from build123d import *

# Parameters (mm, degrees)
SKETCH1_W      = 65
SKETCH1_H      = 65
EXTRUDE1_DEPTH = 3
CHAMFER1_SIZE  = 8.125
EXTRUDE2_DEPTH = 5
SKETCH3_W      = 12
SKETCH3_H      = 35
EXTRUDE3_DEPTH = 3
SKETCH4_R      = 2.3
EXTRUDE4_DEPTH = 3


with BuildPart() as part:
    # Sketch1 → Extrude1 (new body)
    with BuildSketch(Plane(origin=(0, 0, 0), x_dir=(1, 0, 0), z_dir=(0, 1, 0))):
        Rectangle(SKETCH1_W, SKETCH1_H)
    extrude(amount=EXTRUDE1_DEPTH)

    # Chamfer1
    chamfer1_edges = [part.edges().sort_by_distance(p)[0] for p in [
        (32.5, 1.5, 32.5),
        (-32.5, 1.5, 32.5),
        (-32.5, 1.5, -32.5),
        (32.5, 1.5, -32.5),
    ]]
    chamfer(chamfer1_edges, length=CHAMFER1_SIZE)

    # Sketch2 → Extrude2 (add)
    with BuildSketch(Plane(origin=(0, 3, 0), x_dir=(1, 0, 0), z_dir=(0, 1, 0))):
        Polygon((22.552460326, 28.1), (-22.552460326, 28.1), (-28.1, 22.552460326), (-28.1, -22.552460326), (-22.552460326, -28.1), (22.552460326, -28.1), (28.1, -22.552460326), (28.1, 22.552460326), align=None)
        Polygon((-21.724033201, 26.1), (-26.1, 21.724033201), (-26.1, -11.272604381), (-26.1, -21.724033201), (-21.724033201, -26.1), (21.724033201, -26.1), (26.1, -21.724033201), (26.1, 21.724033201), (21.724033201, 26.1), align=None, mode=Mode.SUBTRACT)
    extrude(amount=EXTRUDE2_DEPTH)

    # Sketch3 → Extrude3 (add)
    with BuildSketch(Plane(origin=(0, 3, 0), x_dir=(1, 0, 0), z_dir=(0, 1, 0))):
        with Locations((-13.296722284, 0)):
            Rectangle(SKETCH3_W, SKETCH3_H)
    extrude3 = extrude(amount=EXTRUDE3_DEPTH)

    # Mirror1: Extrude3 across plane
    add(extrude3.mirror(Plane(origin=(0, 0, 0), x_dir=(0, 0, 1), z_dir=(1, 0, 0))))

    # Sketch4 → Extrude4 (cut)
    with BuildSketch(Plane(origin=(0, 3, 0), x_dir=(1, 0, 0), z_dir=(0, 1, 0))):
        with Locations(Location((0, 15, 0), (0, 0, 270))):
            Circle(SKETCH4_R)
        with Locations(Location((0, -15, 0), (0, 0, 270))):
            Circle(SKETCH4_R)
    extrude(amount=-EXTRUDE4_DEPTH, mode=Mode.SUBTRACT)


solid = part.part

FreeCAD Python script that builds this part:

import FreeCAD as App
import Part
import Sketcher

V = App.Vector
Q = App.Units.Quantity


def edges_at(feature, points):
    """Names of the edges that pass closest to the given points."""
    edges = feature.Shape.Edges
    near = lambda p: min(range(len(edges)), key=lambda i: edges[i].distToShape(Part.Vertex(*p))[0])
    return sorted({f"Edge{near(p) + 1}" for p in points})


def add_polygon(sketch, points):
    """Adds a closed chain of lines whose ends are joined by coincident constraints."""
    first, n = sketch.GeometryCount, len(points)
    for a, b in zip(points, points[1:] + points[:1]):
        sketch.addGeometry(Part.LineSegment(App.Vector(*a, 0), App.Vector(*b, 0)), False)
    for i in range(n):
        sketch.addConstraint(Sketcher.Constraint("Coincident", first + i, 2, first + (i + 1) % n, 1))

doc = App.newDocument("Part")
body = doc.addObject("PartDesign::Body", "Body")

# Sketch on XZ plane
sketch1 = body.newObject("Sketcher::SketchObject", "Sketch")
sketch1.AttachmentSupport = (doc.getObject("XZ_Plane"), [""])
sketch1.MapMode = "FlatFace"
add_polygon(sketch1, [(-32, -32), (-32, 32), (32, 32), (32, -32)])  # lines 0-3
sketch1.addConstraint(Sketcher.Constraint("Vertical", 0))
sketch1.addConstraint(Sketcher.Constraint("Horizontal", 1))
sketch1.addConstraint(Sketcher.Constraint("Vertical", 2))
sketch1.addConstraint(Sketcher.Constraint("Horizontal", 3))
sketch1.addConstraint(Sketcher.Constraint("Symmetric", 0, 2, 2, 2, -1, 1))
sketch1.addConstraint(Sketcher.Constraint("Equal", 3, 0))
sketch1.addConstraint(Sketcher.Constraint("DistanceX", 1, 1, 1, 2, Q("65 mm")))
pad1 = body.newObject("PartDesign::Pad", "Pad")
pad1.Profile = sketch1
pad1.Length = 3
pad1.Reversed = True
doc.recompute()

chamfer = body.newObject("PartDesign::Chamfer", "Chamfer")
chamfer.Base = (pad1, edges_at(pad1, [
    (32.5, 1.5, 32.5),
    (-32.5, 1.5, 32.5),
    (-32.5, 1.5, -32.5),
    (32.5, 1.5, -32.5),
]))
chamfer.Size = 8.125

# Sketch on XZ plane
sketch2 = body.newObject("Sketcher::SketchObject", "Sketch001")
sketch2.AttachmentSupport = (doc.getObject("XZ_Plane"), [""])
sketch2.MapMode = "FlatFace"
sketch2.AttachmentOffset = App.Placement(V(0, 0, -3), App.Rotation())
add_polygon(sketch2, [(23, -28), (-23, -28), (-28, -23), (-28, 23), (-23, 28), (23, 28), (28, 23), (28, -23)])  # lines 0-7
add_polygon(sketch2, [(-26, -22), (-22, -26), (22, -26), (26, -22), (26, 22), (22, 26), (-22, 26), (-26, 22)])  # lines 8-15
sketch2.addConstraint(Sketcher.Constraint("Horizontal", 0))
sketch2.addConstraint(Sketcher.Constraint("Vertical", 2))
sketch2.addConstraint(Sketcher.Constraint("Horizontal", 4))
sketch2.addConstraint(Sketcher.Constraint("Vertical", 6))
sketch2.addConstraint(Sketcher.Constraint("Horizontal", 9))
sketch2.addConstraint(Sketcher.Constraint("Vertical", 11))
sketch2.addConstraint(Sketcher.Constraint("Horizontal", 13))
sketch2.addConstraint(Sketcher.Constraint("Vertical", 15))
sketch2.addConstraint(Sketcher.Constraint("Symmetric", 0, 2, 4, 2, -1, 1))
sketch2.addConstraint(Sketcher.Constraint("Symmetric", 1, 2, 5, 2, -1, 1))
sketch2.addConstraint(Sketcher.Constraint("Symmetric", 8, 2, 12, 2, -1, 1))
sketch2.addConstraint(Sketcher.Constraint("Symmetric", 10, 2, 14, 2, -1, 1))
sketch2.addConstraint(Sketcher.Constraint("Perpendicular", 1, 3))
sketch2.addConstraint(Sketcher.Constraint("Perpendicular", 5, 7))
sketch2.addConstraint(Sketcher.Constraint("Perpendicular", 7, 8))
sketch2.addConstraint(Sketcher.Constraint("Perpendicular", 8, 10))
sketch2.addConstraint(Sketcher.Constraint("Perpendicular", 10, 12))
sketch2.addConstraint(Sketcher.Constraint("Perpendicular", 12, 14))
sketch2.addConstraint(Sketcher.Constraint("Horizontal", 2, 2, 5, 2))
sketch2.addConstraint(Sketcher.Constraint("Horizontal", 1, 2, 6, 2))
sketch2.addConstraint(Sketcher.Constraint("Horizontal", 11, 2, 14, 2))
sketch2.addConstraint(Sketcher.Constraint("Vertical", 0, 2, 3, 2))
sketch2.addConstraint(Sketcher.Constraint("Equal", 4, 2))
sketch2.addConstraint(Sketcher.Constraint("Equal", 13, 11))
sketch2.addConstraint(Sketcher.Constraint("DistanceY", 0, 2, 8, 2, Q("2 mm")))
sketch2.addConstraint(Sketcher.Constraint("DistanceY", 0, 2, -1, 1, Q("28.1 mm")))
sketch2.addConstraint(Sketcher.Constraint("DistanceX", 0, 2, 0, 1, Q("45.104921 mm")))
sketch2.addConstraint(Sketcher.Constraint("Distance", 8, Q("6.188552 mm")))
pad2 = body.newObject("PartDesign::Pad", "Pad001")
pad2.Profile = sketch2
pad2.Length = 5
pad2.Reversed = True

# Sketch on XZ plane
sketch3 = body.newObject("Sketcher::SketchObject", "Sketch002")
sketch3.AttachmentSupport = (doc.getObject("XZ_Plane"), [""])
sketch3.MapMode = "FlatFace"
sketch3.AttachmentOffset = App.Placement(V(0, 0, -3), App.Rotation())
add_polygon(sketch3, [(-19, -18), (-19, 18), (-7, 18), (-7, -18)])  # lines 0-3
sketch3.addConstraint(Sketcher.Constraint("Vertical", 0))
sketch3.addConstraint(Sketcher.Constraint("Horizontal", 1))
sketch3.addConstraint(Sketcher.Constraint("Vertical", 2))
sketch3.addConstraint(Sketcher.Constraint("Horizontal", 3))
sketch3.addConstraint(Sketcher.Constraint("DistanceX", 1, 1, 1, 2, Q("12 mm")))
sketch3.addConstraint(Sketcher.Constraint("DistanceY", 0, 1, 0, 2, Q("35 mm")))
sketch3.addConstraint(Sketcher.Constraint("DistanceY", -1, 1, 0, 2, Q("17.5 mm")))
sketch3.addConstraint(Sketcher.Constraint("DistanceX", 0, 2, -1, 1, Q("19.296722 mm")))
pad3 = body.newObject("PartDesign::Pad", "Pad002")
pad3.Profile = sketch3
pad3.Length = 3
pad3.Reversed = True
doc.recompute()

mirrored = body.newObject("PartDesign::Mirrored", "Mirrored")
mirrored.Originals = [pad3]
mirrored.MirrorPlane = (doc.getObject("YZ_Plane"), [""])
body.Tip = mirrored

# Sketch on XZ plane
sketch4 = body.newObject("Sketcher::SketchObject", "Sketch003")
sketch4.AttachmentSupport = (doc.getObject("XZ_Plane"), [""])
sketch4.MapMode = "FlatFace"
sketch4.AttachmentOffset = App.Placement(V(0, 0, -3), App.Rotation())
sketch4.addGeometry(Part.Circle(V(0, -15, 0), V(0, 0, 1), 2.3), False)
sketch4.addGeometry(Part.Circle(V(0, 15, 0), V(0, 0, 1), 2.3), False)
sketch4.addConstraint(Sketcher.Constraint("Equal", 0, 1))
sketch4.addConstraint(Sketcher.Constraint("Symmetric", 0, 3, 1, 3, -1, 1))
sketch4.addConstraint(Sketcher.Constraint("PointOnObject", 0, 3, -2))
sketch4.addConstraint(Sketcher.Constraint("Diameter", 0, Q("4.6 mm")))
sketch4.addConstraint(Sketcher.Constraint("DistanceY", 0, 3, -1, 1, Q("15 mm")))
pocket1 = body.newObject("PartDesign::Pocket", "Pocket")
pocket1.Profile = sketch4
pocket1.Length = 3
pocket1.Reversed = True

doc.recompute()
